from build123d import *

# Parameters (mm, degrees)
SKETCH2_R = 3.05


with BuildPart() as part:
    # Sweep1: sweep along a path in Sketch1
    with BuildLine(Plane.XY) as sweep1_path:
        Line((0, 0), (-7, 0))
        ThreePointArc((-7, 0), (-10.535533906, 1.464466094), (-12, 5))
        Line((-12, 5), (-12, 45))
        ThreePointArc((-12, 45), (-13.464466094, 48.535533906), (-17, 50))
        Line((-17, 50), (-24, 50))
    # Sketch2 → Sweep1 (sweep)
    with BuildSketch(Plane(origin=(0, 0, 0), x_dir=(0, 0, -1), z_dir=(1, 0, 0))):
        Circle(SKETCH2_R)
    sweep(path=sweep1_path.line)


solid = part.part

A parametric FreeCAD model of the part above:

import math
import FreeCAD as App
import Part
import Sketcher

doc = App.newDocument("Part")
body = doc.addObject("PartDesign::Body", "Body")

# Sketch on YZ plane
sketch1 = body.newObject("Sketcher::SketchObject", "Sketch")
sketch1.AttachmentSupport = (doc.getObject("YZ_Plane"), [""])
sketch1.MapMode = "FlatFace"
sketch1.addGeometry(Part.Circle(App.Vector(0, 0, 0), App.Vector(0, 0, 1), 3.05), False)
sketch1.addConstraint([
    Sketcher.Constraint("Coincident", 0, 3, -1, 1),
    Sketcher.Constraint("Diameter", 0, 6.1),
])

# Sketch on XY plane
sketch2 = body.newObject("Sketcher::SketchObject", "Sketch001")
sketch2.AttachmentSupport = (doc.getObject("XY_Plane"), [""])
sketch2.MapMode = "FlatFace"
sketch2.addGeometry([
    Part.LineSegment(App.Vector(0, 0, 0), App.Vector(-7, 0, 0)),  # 0
    Part.ArcOfCircle(Part.Circle(App.Vector(-7, 5, 0), App.Vector(0, 0, 1), 5), math.radians(180), math.radians(270)),  # 1
    Part.LineSegment(App.Vector(-12, 5, 0), App.Vector(-12, 45, 0)),  # 2
    Part.ArcOfCircle(Part.Circle(App.Vector(-17, 45, 0), App.Vector(0, 0, 1), 5), math.radians(0), math.radians(90)),  # 3
    Part.LineSegment(App.Vector(-17, 50, 0), App.Vector(-24, 50, 0)),  # 4
], False)
sketch2.addConstraint([
    Sketcher.Constraint("Tangent", 0, 2, 1, 2),
    Sketcher.Constraint("Tangent", 1, 1, 2, 1),
    Sketcher.Constraint("Tangent", 2, 2, 3, 1),
    Sketcher.Constraint("Tangent", 3, 2, 4, 1),
    Sketcher.Constraint("Horizontal", 0),
    Sketcher.Constraint("Vertical", 2),
    Sketcher.Constraint("Horizontal", 4),
    Sketcher.Constraint("Coincident", 0, 1, -1, 1),
    Sketcher.Constraint("Equal", 1, 3),
    Sketcher.Constraint("Equal", 0, 4),
    Sketcher.Constraint("Radius", 1, 5.0),
    Sketcher.Constraint("DistanceX", 0, 2, 0, 1, 7.0),
    Sketcher.Constraint("DistanceY", 2, 1, 2, 2, 40.0),
])
doc.recompute()

additivepipe = body.newObject("PartDesign::AdditivePipe", "AdditivePipe")
additivepipe.Profile = sketch1
additivepipe.Spine = (sketch2, ["Edge1", "Edge2", "Edge3", "Edge4", "Edge5"])

doc.recompute()
